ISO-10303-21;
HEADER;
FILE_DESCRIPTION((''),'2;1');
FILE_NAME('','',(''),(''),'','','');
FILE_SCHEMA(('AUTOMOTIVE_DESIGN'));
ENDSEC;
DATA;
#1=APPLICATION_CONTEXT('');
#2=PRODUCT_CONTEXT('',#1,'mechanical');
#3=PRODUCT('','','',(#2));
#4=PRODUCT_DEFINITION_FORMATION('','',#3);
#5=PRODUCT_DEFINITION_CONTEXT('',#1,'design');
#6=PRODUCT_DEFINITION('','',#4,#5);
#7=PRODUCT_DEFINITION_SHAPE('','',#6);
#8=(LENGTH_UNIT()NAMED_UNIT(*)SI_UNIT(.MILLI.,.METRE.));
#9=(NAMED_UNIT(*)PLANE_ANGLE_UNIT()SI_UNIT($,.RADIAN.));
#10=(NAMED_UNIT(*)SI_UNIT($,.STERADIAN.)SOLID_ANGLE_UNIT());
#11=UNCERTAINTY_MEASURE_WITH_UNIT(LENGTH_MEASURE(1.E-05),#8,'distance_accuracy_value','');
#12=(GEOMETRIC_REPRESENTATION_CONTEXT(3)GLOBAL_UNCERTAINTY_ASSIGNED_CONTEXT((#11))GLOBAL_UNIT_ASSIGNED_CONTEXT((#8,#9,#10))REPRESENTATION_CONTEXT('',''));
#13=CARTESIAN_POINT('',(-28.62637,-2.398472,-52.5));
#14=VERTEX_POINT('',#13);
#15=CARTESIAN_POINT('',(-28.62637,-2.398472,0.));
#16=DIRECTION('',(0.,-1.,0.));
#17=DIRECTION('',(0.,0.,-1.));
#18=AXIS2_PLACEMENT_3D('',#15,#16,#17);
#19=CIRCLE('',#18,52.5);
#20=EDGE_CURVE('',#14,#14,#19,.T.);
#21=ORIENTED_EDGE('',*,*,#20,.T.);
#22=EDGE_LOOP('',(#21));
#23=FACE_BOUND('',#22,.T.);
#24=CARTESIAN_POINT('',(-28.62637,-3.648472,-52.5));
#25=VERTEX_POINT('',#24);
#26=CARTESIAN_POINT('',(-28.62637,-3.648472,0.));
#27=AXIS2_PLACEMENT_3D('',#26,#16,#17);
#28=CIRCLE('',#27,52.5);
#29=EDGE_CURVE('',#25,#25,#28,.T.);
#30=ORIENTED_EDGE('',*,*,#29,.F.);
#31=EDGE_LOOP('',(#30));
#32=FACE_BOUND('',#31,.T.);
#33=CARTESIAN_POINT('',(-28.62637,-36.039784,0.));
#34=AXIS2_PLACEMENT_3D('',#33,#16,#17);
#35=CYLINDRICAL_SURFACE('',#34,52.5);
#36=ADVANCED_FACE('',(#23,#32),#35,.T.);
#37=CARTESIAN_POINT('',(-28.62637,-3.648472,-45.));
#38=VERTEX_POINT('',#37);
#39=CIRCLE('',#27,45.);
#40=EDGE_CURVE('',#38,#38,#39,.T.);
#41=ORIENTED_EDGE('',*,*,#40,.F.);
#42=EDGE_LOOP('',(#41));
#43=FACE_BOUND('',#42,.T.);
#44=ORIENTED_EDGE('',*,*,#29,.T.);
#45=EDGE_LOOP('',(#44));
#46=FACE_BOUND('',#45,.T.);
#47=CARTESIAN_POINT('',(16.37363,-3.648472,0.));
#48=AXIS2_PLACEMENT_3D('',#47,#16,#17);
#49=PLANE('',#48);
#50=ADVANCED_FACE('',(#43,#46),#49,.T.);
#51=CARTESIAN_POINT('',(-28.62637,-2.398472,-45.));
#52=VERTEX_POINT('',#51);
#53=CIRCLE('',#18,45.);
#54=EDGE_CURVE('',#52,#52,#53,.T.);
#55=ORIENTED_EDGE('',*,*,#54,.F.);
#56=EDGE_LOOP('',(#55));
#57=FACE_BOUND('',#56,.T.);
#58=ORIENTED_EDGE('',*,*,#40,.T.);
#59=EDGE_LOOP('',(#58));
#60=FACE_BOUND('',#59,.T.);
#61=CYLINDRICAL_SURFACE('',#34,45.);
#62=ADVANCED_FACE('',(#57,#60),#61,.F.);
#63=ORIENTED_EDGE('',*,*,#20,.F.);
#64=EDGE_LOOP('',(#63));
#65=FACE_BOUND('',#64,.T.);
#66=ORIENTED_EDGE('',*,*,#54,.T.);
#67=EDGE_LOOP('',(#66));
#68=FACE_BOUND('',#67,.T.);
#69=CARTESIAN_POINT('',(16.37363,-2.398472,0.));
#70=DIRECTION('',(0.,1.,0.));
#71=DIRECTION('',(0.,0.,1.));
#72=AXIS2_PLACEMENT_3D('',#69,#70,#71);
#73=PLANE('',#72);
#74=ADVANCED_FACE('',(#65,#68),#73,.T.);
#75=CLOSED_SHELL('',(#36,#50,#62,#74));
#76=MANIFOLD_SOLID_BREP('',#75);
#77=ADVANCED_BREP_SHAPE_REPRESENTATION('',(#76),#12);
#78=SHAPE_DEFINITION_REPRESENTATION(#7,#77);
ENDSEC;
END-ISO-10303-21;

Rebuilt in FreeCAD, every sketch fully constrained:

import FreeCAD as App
import Part
import Sketcher
from FreeCAD import Vector

doc = App.newDocument("Part")
params = doc.addObject("Spreadsheet::Sheet", "Params")
for row, (alias, value) in enumerate([
    ("sketch1_width", "7.5 mm"),
    ("sketch1_height", "1.25 mm"),
    ("revolution_angle", "360 deg"),
], start=1):
    params.set(f"A{row}", alias)
    params.set(f"B{row}", "=" + value)
    params.setAlias(f"B{row}", alias)

body = doc.addObject("PartDesign::Body", "Body")

# Sketch on XY plane
sketch1 = body.newObject("Sketcher::SketchObject", "Sketch")
sketch1.AttachmentSupport = (doc.getObject("XY_Plane"), [""])
sketch1.MapMode = "FlatFace"
sketch1.addGeometry(Part.LineSegment(Vector(16.4, -2.4, 0), Vector(16.4, -3.6, 0)), False)
sketch1.addGeometry(Part.LineSegment(Vector(16.4, -3.6, 0), Vector(23.9, -3.6, 0)), False)
sketch1.addGeometry(Part.LineSegment(Vector(23.9, -3.6, 0), Vector(23.9, -2.4, 0)), False)
sketch1.addGeometry(Part.LineSegment(Vector(23.9, -2.4, 0), Vector(16.4, -2.4, 0)), False)
sketch1.addGeometry(Part.LineSegment(Vector(-28.6, -3.6, 0), Vector(-28.6, -2.4, 0)), True)  # axis
sketch1.addConstraint(Sketcher.Constraint("Coincident", 0, 2, 1, 1))
sketch1.addConstraint(Sketcher.Constraint("Coincident", 1, 2, 2, 1))
sketch1.addConstraint(Sketcher.Constraint("Coincident", 2, 2, 3, 1))
sketch1.addConstraint(Sketcher.Constraint("Coincident", 3, 2, 0, 1))
sketch1.addConstraint(Sketcher.Constraint("Vertical", 0))
sketch1.addConstraint(Sketcher.Constraint("Horizontal", 1))
sketch1.addConstraint(Sketcher.Constraint("Vertical", 2))
sketch1.addConstraint(Sketcher.Constraint("Horizontal", 3))
sketch1.addConstraint(Sketcher.Constraint("Vertical", 4))
sketch1.addConstraint(Sketcher.Constraint("Horizontal", 1, 2, 4, 1))
sketch1.addConstraint(Sketcher.Constraint("Horizontal", 3, 2, 4, 2))
sketch1.addConstraint(Sketcher.Constraint("DistanceX", 1, 1, 1, 2, 7.5))
sketch1.addConstraint(Sketcher.Constraint("DistanceX", 4, 1, 0, 2, 45.0))
sketch1.addConstraint(Sketcher.Constraint("DistanceY", 0, 2, 0, 1, 1.25))
sketch1.addConstraint(Sketcher.Constraint("DistanceX", -1, 1, 0, 2, 16.37363))
sketch1.addConstraint(Sketcher.Constraint("DistanceY", 0, 2, -1, 1, 3.648472))
sketch1.setExpression("Constraints[11]", "Params.sketch1_width")
sketch1.setExpression("Constraints[13]", "Params.sketch1_height")
revolution = body.newObject("PartDesign::Revolution", "Revolution")
revolution.Profile = sketch1
revolution.ReferenceAxis = (sketch1, ["Axis0"])
revolution.setExpression("Angle", "Params.revolution_angle")

doc.recompute()
